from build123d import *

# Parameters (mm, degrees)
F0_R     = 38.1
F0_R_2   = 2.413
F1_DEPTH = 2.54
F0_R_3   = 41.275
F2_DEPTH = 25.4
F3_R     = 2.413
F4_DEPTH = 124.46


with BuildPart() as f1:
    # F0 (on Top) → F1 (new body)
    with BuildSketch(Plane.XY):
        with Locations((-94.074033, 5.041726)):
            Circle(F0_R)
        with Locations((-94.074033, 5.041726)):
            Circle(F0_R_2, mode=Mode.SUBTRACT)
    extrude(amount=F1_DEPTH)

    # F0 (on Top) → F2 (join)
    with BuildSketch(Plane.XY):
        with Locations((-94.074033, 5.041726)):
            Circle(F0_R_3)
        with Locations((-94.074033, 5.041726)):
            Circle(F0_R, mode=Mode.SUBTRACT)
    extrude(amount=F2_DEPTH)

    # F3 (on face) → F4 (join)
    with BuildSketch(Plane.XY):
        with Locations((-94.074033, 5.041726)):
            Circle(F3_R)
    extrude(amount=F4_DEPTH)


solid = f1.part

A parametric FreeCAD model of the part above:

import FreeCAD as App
import Part
import Sketcher
Q = App.Units.Quantity

doc = App.newDocument("Part")
body = doc.addObject("PartDesign::Body", "Body")

sketch1 = doc.addObject("Sketcher::SketchObject", "Sketch")
body.addObject(sketch1)
sketch1.AttachmentSupport = (doc.XY_Plane, [""])
sketch1.MapMode = "FlatFace"
sketch1.addGeometry([
    Part.Circle(App.Vector(-94.1, 5, 0), App.Vector(0, 0, 1), 38.1),
    Part.Circle(App.Vector(-94.1, 5, 0), App.Vector(0, 0, 1), 2.4),
], False)
sketch1.addConstraint([
    Sketcher.Constraint("Coincident", 1, 3, 0, 3),
    Sketcher.Constraint("Diameter", 0, Q("3 in")),
    Sketcher.Constraint("Diameter", 1, Q("0.19 in")),
    Sketcher.Constraint("DistanceX", 0, 3, -1, 1, Q("94.074033 mm")),
    Sketcher.Constraint("DistanceY", -1, 1, 0, 3, Q("5.041726 mm")),
])
pad1 = doc.addObject("PartDesign::Pad", "Pad")
body.addObject(pad1)
pad1.Profile = sketch1
pad1.Length = Q("0.1 in")

sketch2 = doc.addObject("Sketcher::SketchObject", "Sketch001")
body.addObject(sketch2)
sketch2.AttachmentSupport = (doc.XY_Plane, [""])
sketch2.MapMode = "FlatFace"
sketch2.addGeometry([
    Part.Circle(App.Vector(-94, 5, 0), App.Vector(0, 0, 1), 41),
    Part.Circle(App.Vector(-94, 5, 0), App.Vector(0, 0, 1), 38),
], False)
sketch2.addConstraint([
    Sketcher.Constraint("Coincident", 1, 3, 0, 3),
    Sketcher.Constraint("Diameter", 1, Q("3 in")),
    Sketcher.Constraint("Diameter", 0, Q("3.25 in")),
    Sketcher.Constraint("DistanceX", 0, 3, -1, 1, Q("94.074033 mm")),
    Sketcher.Constraint("DistanceY", -1, 1, 0, 3, Q("5.041726 mm")),
])
pad2 = doc.addObject("PartDesign::Pad", "Pad001")
body.addObject(pad2)
pad2.Profile = sketch2
pad2.Length = Q("1 in")

sketch3 = doc.addObject("Sketcher::SketchObject", "Sketch002")
body.addObject(sketch3)
sketch3.AttachmentSupport = (doc.XY_Plane, [""])
sketch3.MapMode = "FlatFace"
sketch3.addGeometry(Part.Circle(App.Vector(-94.1, 5, 0), App.Vector(0, 0, 1), 2.4), False)
sketch3.addConstraint([
    Sketcher.Constraint("Diameter", 0, Q("0.19 in")),
    Sketcher.Constraint("DistanceX", 0, 3, -1, 1, Q("94.074033 mm")),
    Sketcher.Constraint("DistanceY", -1, 1, 0, 3, Q("5.041726 mm")),
])
pad3 = doc.addObject("PartDesign::Pad", "Pad002")
body.addObject(pad3)
pad3.Profile = sketch3
pad3.Length = Q("4.9 in")

doc.recompute()
